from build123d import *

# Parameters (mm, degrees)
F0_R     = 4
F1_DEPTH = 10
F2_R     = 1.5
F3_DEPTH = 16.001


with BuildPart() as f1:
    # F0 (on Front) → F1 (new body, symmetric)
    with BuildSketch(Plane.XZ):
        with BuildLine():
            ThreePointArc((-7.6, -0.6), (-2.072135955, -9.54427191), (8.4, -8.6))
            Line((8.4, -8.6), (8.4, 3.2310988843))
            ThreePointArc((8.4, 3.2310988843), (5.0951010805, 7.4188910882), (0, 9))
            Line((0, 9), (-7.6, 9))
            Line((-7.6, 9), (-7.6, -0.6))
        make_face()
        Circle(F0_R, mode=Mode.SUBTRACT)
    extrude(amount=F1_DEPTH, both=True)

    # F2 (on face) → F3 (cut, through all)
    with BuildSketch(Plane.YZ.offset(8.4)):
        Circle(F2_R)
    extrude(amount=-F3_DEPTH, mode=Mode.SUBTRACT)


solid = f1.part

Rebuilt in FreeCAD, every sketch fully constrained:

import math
import FreeCAD as App
import Part
import Sketcher

doc = App.newDocument("Part")
params = doc.addObject("Spreadsheet::Sheet", "Params")
for row, (alias, value) in enumerate([
    ("sketch1_diameter", "8 mm"),
    ("sketch1_radius", "10 mm"),
    ("sketch1_radius2", "9 mm"),
    ("sketch1_width", "7.6 mm"),
    ("sketch1_height", "9.6 mm"),
    ("pad1_length", "20 mm"),
    ("sketch2_diameter", "3 mm"),
], start=1):
    params.set(f"A{row}", alias)
    params.set(f"B{row}", "=" + value)
    params.setAlias(f"B{row}", alias)

body = doc.addObject("PartDesign::Body", "Body")

# Sketch on XZ plane
sketch1 = doc.addObject("Sketcher::SketchObject", "Sketch")
body.addObject(sketch1)
sketch1.AttachmentSupport = (doc.XZ_Plane, [""])
sketch1.MapMode = "FlatFace"
sketch1.addGeometry([
    Part.ArcOfCircle(Part.Circle(App.Vector(2.4, -0.6, 0), App.Vector(0, 0, 1), 10), math.radians(180), math.radians(307)),  # 0
    Part.LineSegment(App.Vector(8.4, -8.6, 0), App.Vector(8.4, 3.2, 0)),  # 1
    Part.ArcOfCircle(Part.Circle(App.Vector(0, 0, 0), App.Vector(0, 0, 1), 9), math.radians(21), math.radians(90)),  # 2
    Part.LineSegment(App.Vector(0, 9, 0), App.Vector(-7.6, 9, 0)),  # 3
    Part.LineSegment(App.Vector(-7.6, 9, 0), App.Vector(-7.6, -0.6, 0)),  # 4
    Part.Circle(App.Vector(0, 0, 0), App.Vector(0, 0, 1), 4),  # 5
], False)
sketch1.addConstraint([
    Sketcher.Constraint("Coincident", 0, 2, 1, 1),
    Sketcher.Constraint("Coincident", 1, 2, 2, 1),
    Sketcher.Constraint("Tangent", 2, 2, 3, 1),
    Sketcher.Constraint("Coincident", 3, 2, 4, 1),
    Sketcher.Constraint("Tangent", 4, 2, 0, 1),
    Sketcher.Constraint("Vertical", 1),
    Sketcher.Constraint("Horizontal", 3),
    Sketcher.Constraint("Vertical", 4),
    Sketcher.Constraint("Coincident", 2, 3, -1, 1),
    Sketcher.Constraint("Coincident", 5, 3, -1, 1),
    Sketcher.Constraint("Diameter", 5, 8.0),
    Sketcher.Constraint("Radius", 0, 10.0),
    Sketcher.Constraint("Radius", 2, 9.0),
    Sketcher.Constraint("DistanceX", 3, 2, 3, 1, 7.6),
    Sketcher.Constraint("DistanceY", 4, 2, 4, 1, 9.6),
    Sketcher.Constraint("DistanceX", 0, 3, 0, 2, 6.0),
])
sketch1.setExpression("Constraints[10]", "Params.sketch1_diameter")
sketch1.setExpression("Constraints[11]", "Params.sketch1_radius")
sketch1.setExpression("Constraints[12]", "Params.sketch1_radius2")
sketch1.setExpression("Constraints[13]", "Params.sketch1_width")
sketch1.setExpression("Constraints[14]", "Params.sketch1_height")
pad1 = doc.addObject("PartDesign::Pad", "Pad")
body.addObject(pad1)
pad1.Profile = sketch1
pad1.setExpression("Length", "Params.pad1_length")
pad1.Midplane = True

# Sketch on YZ plane
sketch2 = doc.addObject("Sketcher::SketchObject", "Sketch001")
body.addObject(sketch2)
sketch2.AttachmentSupport = (doc.YZ_Plane, [""])
sketch2.MapMode = "FlatFace"
sketch2.AttachmentOffset = App.Placement(App.Vector(0, 0, 8.4), App.Rotation())
sketch2.addGeometry(Part.Circle(App.Vector(0, 0, 0), App.Vector(0, 0, 1), 1.5), False)
sketch2.addConstraint([
    Sketcher.Constraint("Coincident", 0, 3, -1, 1),
    Sketcher.Constraint("Diameter", 0, 3.0),
])
sketch2.setExpression("Constraints[1]", "Params.sketch2_diameter")
pocket1 = doc.addObject("PartDesign::Pocket", "Pocket")
body.addObject(pocket1)
pocket1.Profile = sketch2
pocket1.Type = "ThroughAll"

doc.recompute()
